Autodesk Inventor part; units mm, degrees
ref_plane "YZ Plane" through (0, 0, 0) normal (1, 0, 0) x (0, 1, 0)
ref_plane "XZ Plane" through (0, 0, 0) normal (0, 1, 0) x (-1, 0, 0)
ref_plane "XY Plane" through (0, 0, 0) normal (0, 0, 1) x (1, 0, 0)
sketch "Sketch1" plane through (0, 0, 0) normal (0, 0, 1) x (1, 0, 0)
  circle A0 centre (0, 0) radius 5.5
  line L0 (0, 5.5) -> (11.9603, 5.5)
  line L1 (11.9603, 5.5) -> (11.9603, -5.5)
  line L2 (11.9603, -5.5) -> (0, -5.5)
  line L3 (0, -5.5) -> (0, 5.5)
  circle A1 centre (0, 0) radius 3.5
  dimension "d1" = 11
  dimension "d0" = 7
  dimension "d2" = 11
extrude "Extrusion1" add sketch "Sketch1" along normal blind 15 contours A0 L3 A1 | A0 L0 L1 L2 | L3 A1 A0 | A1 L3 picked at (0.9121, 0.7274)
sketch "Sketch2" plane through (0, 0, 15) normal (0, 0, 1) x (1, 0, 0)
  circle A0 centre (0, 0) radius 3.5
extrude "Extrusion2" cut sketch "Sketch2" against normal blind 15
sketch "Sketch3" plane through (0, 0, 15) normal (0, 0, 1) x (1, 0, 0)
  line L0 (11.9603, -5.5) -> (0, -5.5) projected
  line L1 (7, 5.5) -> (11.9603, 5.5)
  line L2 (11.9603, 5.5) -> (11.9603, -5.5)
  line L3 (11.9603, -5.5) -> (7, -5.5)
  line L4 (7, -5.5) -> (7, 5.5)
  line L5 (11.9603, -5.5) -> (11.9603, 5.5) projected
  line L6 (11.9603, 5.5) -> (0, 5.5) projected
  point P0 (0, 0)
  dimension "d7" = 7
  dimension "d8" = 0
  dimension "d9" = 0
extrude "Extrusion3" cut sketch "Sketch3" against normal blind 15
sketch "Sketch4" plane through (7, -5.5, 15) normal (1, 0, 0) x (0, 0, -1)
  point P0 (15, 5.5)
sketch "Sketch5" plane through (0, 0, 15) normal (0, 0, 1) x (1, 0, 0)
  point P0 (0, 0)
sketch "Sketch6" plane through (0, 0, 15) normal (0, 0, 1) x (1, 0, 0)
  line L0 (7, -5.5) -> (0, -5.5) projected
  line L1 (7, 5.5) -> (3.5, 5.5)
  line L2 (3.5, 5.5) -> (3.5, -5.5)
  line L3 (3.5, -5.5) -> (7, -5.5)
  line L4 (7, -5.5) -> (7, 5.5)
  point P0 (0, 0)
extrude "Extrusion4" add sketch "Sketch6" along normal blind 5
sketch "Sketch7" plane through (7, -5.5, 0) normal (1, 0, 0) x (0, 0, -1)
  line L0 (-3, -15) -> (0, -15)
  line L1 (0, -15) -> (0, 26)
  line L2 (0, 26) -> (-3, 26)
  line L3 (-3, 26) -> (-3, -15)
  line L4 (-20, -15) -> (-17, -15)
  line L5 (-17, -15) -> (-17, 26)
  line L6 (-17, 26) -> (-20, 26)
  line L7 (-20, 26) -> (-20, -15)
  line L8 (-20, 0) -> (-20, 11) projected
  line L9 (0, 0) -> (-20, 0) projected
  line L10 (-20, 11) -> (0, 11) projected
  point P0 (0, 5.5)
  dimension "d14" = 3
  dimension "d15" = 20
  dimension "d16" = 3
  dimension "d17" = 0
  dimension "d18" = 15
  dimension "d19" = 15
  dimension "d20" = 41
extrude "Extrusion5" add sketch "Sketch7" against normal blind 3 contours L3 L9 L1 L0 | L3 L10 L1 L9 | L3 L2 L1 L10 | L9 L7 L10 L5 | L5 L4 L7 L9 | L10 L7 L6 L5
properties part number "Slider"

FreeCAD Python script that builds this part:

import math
import FreeCAD as App
import Part
import Sketcher
Q = App.Units.Quantity

doc = App.newDocument("Part")
body = doc.addObject("PartDesign::Body", "Body")

sketch1 = body.newObject("Sketcher::SketchObject", "Sketch")
sketch1.AttachmentSupport = (doc.getObject("XY_Plane"), [""])
sketch1.MapMode = "FlatFace"
sketch1.addGeometry([
    Part.LineSegment(App.Vector(0, -5.5, 0), App.Vector(11.9603, -5.5, 0)),
    Part.LineSegment(App.Vector(11.9603, -5.5, 0), App.Vector(11.9603, 5.5, 0)),
    Part.LineSegment(App.Vector(11.9603, 5.5, 0), App.Vector(0, 5.5, 0)),
    Part.ArcOfCircle(Part.Circle(App.Vector(0, 0, 0), App.Vector(0, 0, 1), 5.5), math.radians(90), math.radians(270)),
    Part.ArcOfCircle(Part.Circle(App.Vector(0, 0, 0), App.Vector(0, 0, 1), 3.5), math.radians(90), math.radians(270)),
    Part.LineSegment(App.Vector(0, 3.5, 0), App.Vector(0, -3.5, 0)),
], False)
sketch1.addConstraint([
    Sketcher.Constraint("Coincident", 0, 2, 1, 1),
    Sketcher.Constraint("Coincident", 1, 2, 2, 1),
    Sketcher.Constraint("Tangent", 2, 2, 3, 1),
    Sketcher.Constraint("Tangent", 3, 2, 0, 1),
    Sketcher.Constraint("Coincident", 4, 1, 5, 1),
    Sketcher.Constraint("Coincident", 5, 2, 4, 2),
    Sketcher.Constraint("Horizontal", 0),
    Sketcher.Constraint("Vertical", 1),
    Sketcher.Constraint("Horizontal", 2),
    Sketcher.Constraint("Vertical", 5),
    Sketcher.Constraint("Coincident", 3, 3, -1, 1),
    Sketcher.Constraint("Coincident", 4, 3, -1, 1),
    Sketcher.Constraint("PointOnObject", 4, 1, -2),
    Sketcher.Constraint("Radius", 3, Q("5.5 mm")),
    Sketcher.Constraint("Radius", 4, Q("3.5 mm")),
    Sketcher.Constraint("DistanceX", 0, 1, 0, 2, Q("11.9603 mm")),
])
pad1 = body.newObject("PartDesign::Pad", "Pad")
pad1.Profile = sketch1
pad1.Length = 15

sketch2 = body.newObject("Sketcher::SketchObject", "Sketch001")
sketch2.AttachmentSupport = (doc.getObject("XY_Plane"), [""])
sketch2.MapMode = "FlatFace"
sketch2.AttachmentOffset = App.Placement(App.Vector(0, 0, 15), App.Rotation())
sketch2.addGeometry(Part.Circle(App.Vector(0, 0, 0), App.Vector(0, 0, 1), 3.5), False)
sketch2.addConstraint([
    Sketcher.Constraint("Coincident", 0, 3, -1, 1),
    Sketcher.Constraint("Diameter", 0, Q("7 mm")),
])
pocket1 = body.newObject("PartDesign::Pocket", "Pocket")
pocket1.Profile = sketch2
pocket1.Length = 15

sketch3 = body.newObject("Sketcher::SketchObject", "Sketch002")
sketch3.AttachmentSupport = (doc.getObject("XY_Plane"), [""])
sketch3.MapMode = "FlatFace"
sketch3.AttachmentOffset = App.Placement(App.Vector(0, 0, 15), App.Rotation())
sketch3.addGeometry([
    Part.LineSegment(App.Vector(7, -5.5, 0), App.Vector(11.9603, -5.5, 0)),
    Part.LineSegment(App.Vector(11.9603, -5.5, 0), App.Vector(11.9603, 5.5, 0)),
    Part.LineSegment(App.Vector(11.9603, 5.5, 0), App.Vector(7, 5.5, 0)),
    Part.LineSegment(App.Vector(7, 5.5, 0), App.Vector(7, -5.5, 0)),
], False)
sketch3.addConstraint([
    Sketcher.Constraint("Coincident", 0, 2, 1, 1),
    Sketcher.Constraint("Coincident", 1, 2, 2, 1),
    Sketcher.Constraint("Coincident", 2, 2, 3, 1),
    Sketcher.Constraint("Coincident", 3, 2, 0, 1),
    Sketcher.Constraint("Horizontal", 0),
    Sketcher.Constraint("Vertical", 1),
    Sketcher.Constraint("Horizontal", 2),
    Sketcher.Constraint("Vertical", 3),
    Sketcher.Constraint("DistanceX", -1, 1, 2, 2, Q("7 mm")),
    Sketcher.Constraint("DistanceY", 1, 1, 1, 2, Q("11 mm")),
    Sketcher.Constraint("DistanceY", 0, 2, -1, 1, Q("5.5 mm")),
    Sketcher.Constraint("DistanceX", 0, 1, 0, 2, Q("4.9603 mm")),
])
pocket2 = body.newObject("PartDesign::Pocket", "Pocket001")
pocket2.Profile = sketch3
pocket2.Length = 15

sketch4 = body.newObject("Sketcher::SketchObject", "Sketch003")
sketch4.AttachmentSupport = (doc.getObject("XY_Plane"), [""])
sketch4.MapMode = "FlatFace"
sketch4.AttachmentOffset = App.Placement(App.Vector(0, 0, 15), App.Rotation())
sketch4.addGeometry([
    Part.LineSegment(App.Vector(3.5, -5.5, 0), App.Vector(7, -5.5, 0)),
    Part.LineSegment(App.Vector(7, -5.5, 0), App.Vector(7, 5.5, 0)),
    Part.LineSegment(App.Vector(7, 5.5, 0), App.Vector(3.5, 5.5, 0)),
    Part.LineSegment(App.Vector(3.5, 5.5, 0), App.Vector(3.5, -5.5, 0)),
], False)
sketch4.addConstraint([
    Sketcher.Constraint("Coincident", 0, 2, 1, 1),
    Sketcher.Constraint("Coincident", 1, 2, 2, 1),
    Sketcher.Constraint("Coincident", 2, 2, 3, 1),
    Sketcher.Constraint("Coincident", 3, 2, 0, 1),
    Sketcher.Constraint("Horizontal", 0),
    Sketcher.Constraint("Vertical", 1),
    Sketcher.Constraint("Horizontal", 2),
    Sketcher.Constraint("Vertical", 3),
    Sketcher.Constraint("DistanceY", 1, 1, 1, 2, Q("11 mm")),
    Sketcher.Constraint("DistanceX", 0, 1, 0, 2, Q("3.5 mm")),
    Sketcher.Constraint("DistanceX", -1, 1, 0, 2, Q("7 mm")),
    Sketcher.Constraint("DistanceY", 0, 2, -1, 1, Q("5.5 mm")),
])
pad2 = body.newObject("PartDesign::Pad", "Pad001")
pad2.Profile = sketch4
pad2.Length = 5

sketch5 = body.newObject("Sketcher::SketchObject", "Sketch004")
sketch5.AttachmentSupport = (doc.getObject("YZ_Plane"), [""])
sketch5.MapMode = "FlatFace"
sketch5.AttachmentOffset = App.Placement(App.Vector(0, 0, 7), App.Rotation())
sketch5.addGeometry([
    Part.LineSegment(App.Vector(-20.5, 3, 0), App.Vector(-20.5, 0, 0)),
    Part.LineSegment(App.Vector(-20.5, 0, 0), App.Vector(20.5, 0, 0)),
    Part.LineSegment(App.Vector(20.5, 0, 0), App.Vector(20.5, 3, 0)),
    Part.LineSegment(App.Vector(20.5, 3, 0), App.Vector(-20.5, 3, 0)),
    Part.LineSegment(App.Vector(-20.5, 20, 0), App.Vector(-20.5, 17, 0)),
    Part.LineSegment(App.Vector(-20.5, 17, 0), App.Vector(20.5, 17, 0)),
    Part.LineSegment(App.Vector(20.5, 17, 0), App.Vector(20.5, 20, 0)),
    Part.LineSegment(App.Vector(20.5, 20, 0), App.Vector(-20.5, 20, 0)),
], False)
sketch5.addConstraint([
    Sketcher.Constraint("Coincident", 0, 2, 1, 1),
    Sketcher.Constraint("Coincident", 1, 2, 2, 1),
    Sketcher.Constraint("Coincident", 2, 2, 3, 1),
    Sketcher.Constraint("Coincident", 3, 2, 0, 1),
    Sketcher.Constraint("Coincident", 4, 2, 5, 1),
    Sketcher.Constraint("Coincident", 5, 2, 6, 1),
    Sketcher.Constraint("Coincident", 6, 2, 7, 1),
    Sketcher.Constraint("Coincident", 7, 2, 4, 1),
    Sketcher.Constraint("Vertical", 0),
    Sketcher.Constraint("Horizontal", 1),
    Sketcher.Constraint("Vertical", 2),
    Sketcher.Constraint("Horizontal", 3),
    Sketcher.Constraint("Vertical", 4),
    Sketcher.Constraint("Horizontal", 5),
    Sketcher.Constraint("Vertical", 6),
    Sketcher.Constraint("Horizontal", 7),
    Sketcher.Constraint("Symmetric", 0, 2, 1, 2, -1, 1),
    Sketcher.Constraint("Vertical", 3, 2, 4, 2),
    Sketcher.Constraint("Vertical", 2, 2, 5, 2),
    Sketcher.Constraint("Equal", 2, 4),
    Sketcher.Constraint("DistanceX", 1, 1, 1, 2, Q("41 mm")),
    Sketcher.Constraint("DistanceY", 0, 2, 0, 1, Q("3 mm")),
    Sketcher.Constraint("DistanceY", -1, 1, 6, 2, Q("20 mm")),
])
pad3 = body.newObject("PartDesign::Pad", "Pad002")
pad3.Profile = sketch5
pad3.Length = 3
pad3.Reversed = True

doc.recompute()
